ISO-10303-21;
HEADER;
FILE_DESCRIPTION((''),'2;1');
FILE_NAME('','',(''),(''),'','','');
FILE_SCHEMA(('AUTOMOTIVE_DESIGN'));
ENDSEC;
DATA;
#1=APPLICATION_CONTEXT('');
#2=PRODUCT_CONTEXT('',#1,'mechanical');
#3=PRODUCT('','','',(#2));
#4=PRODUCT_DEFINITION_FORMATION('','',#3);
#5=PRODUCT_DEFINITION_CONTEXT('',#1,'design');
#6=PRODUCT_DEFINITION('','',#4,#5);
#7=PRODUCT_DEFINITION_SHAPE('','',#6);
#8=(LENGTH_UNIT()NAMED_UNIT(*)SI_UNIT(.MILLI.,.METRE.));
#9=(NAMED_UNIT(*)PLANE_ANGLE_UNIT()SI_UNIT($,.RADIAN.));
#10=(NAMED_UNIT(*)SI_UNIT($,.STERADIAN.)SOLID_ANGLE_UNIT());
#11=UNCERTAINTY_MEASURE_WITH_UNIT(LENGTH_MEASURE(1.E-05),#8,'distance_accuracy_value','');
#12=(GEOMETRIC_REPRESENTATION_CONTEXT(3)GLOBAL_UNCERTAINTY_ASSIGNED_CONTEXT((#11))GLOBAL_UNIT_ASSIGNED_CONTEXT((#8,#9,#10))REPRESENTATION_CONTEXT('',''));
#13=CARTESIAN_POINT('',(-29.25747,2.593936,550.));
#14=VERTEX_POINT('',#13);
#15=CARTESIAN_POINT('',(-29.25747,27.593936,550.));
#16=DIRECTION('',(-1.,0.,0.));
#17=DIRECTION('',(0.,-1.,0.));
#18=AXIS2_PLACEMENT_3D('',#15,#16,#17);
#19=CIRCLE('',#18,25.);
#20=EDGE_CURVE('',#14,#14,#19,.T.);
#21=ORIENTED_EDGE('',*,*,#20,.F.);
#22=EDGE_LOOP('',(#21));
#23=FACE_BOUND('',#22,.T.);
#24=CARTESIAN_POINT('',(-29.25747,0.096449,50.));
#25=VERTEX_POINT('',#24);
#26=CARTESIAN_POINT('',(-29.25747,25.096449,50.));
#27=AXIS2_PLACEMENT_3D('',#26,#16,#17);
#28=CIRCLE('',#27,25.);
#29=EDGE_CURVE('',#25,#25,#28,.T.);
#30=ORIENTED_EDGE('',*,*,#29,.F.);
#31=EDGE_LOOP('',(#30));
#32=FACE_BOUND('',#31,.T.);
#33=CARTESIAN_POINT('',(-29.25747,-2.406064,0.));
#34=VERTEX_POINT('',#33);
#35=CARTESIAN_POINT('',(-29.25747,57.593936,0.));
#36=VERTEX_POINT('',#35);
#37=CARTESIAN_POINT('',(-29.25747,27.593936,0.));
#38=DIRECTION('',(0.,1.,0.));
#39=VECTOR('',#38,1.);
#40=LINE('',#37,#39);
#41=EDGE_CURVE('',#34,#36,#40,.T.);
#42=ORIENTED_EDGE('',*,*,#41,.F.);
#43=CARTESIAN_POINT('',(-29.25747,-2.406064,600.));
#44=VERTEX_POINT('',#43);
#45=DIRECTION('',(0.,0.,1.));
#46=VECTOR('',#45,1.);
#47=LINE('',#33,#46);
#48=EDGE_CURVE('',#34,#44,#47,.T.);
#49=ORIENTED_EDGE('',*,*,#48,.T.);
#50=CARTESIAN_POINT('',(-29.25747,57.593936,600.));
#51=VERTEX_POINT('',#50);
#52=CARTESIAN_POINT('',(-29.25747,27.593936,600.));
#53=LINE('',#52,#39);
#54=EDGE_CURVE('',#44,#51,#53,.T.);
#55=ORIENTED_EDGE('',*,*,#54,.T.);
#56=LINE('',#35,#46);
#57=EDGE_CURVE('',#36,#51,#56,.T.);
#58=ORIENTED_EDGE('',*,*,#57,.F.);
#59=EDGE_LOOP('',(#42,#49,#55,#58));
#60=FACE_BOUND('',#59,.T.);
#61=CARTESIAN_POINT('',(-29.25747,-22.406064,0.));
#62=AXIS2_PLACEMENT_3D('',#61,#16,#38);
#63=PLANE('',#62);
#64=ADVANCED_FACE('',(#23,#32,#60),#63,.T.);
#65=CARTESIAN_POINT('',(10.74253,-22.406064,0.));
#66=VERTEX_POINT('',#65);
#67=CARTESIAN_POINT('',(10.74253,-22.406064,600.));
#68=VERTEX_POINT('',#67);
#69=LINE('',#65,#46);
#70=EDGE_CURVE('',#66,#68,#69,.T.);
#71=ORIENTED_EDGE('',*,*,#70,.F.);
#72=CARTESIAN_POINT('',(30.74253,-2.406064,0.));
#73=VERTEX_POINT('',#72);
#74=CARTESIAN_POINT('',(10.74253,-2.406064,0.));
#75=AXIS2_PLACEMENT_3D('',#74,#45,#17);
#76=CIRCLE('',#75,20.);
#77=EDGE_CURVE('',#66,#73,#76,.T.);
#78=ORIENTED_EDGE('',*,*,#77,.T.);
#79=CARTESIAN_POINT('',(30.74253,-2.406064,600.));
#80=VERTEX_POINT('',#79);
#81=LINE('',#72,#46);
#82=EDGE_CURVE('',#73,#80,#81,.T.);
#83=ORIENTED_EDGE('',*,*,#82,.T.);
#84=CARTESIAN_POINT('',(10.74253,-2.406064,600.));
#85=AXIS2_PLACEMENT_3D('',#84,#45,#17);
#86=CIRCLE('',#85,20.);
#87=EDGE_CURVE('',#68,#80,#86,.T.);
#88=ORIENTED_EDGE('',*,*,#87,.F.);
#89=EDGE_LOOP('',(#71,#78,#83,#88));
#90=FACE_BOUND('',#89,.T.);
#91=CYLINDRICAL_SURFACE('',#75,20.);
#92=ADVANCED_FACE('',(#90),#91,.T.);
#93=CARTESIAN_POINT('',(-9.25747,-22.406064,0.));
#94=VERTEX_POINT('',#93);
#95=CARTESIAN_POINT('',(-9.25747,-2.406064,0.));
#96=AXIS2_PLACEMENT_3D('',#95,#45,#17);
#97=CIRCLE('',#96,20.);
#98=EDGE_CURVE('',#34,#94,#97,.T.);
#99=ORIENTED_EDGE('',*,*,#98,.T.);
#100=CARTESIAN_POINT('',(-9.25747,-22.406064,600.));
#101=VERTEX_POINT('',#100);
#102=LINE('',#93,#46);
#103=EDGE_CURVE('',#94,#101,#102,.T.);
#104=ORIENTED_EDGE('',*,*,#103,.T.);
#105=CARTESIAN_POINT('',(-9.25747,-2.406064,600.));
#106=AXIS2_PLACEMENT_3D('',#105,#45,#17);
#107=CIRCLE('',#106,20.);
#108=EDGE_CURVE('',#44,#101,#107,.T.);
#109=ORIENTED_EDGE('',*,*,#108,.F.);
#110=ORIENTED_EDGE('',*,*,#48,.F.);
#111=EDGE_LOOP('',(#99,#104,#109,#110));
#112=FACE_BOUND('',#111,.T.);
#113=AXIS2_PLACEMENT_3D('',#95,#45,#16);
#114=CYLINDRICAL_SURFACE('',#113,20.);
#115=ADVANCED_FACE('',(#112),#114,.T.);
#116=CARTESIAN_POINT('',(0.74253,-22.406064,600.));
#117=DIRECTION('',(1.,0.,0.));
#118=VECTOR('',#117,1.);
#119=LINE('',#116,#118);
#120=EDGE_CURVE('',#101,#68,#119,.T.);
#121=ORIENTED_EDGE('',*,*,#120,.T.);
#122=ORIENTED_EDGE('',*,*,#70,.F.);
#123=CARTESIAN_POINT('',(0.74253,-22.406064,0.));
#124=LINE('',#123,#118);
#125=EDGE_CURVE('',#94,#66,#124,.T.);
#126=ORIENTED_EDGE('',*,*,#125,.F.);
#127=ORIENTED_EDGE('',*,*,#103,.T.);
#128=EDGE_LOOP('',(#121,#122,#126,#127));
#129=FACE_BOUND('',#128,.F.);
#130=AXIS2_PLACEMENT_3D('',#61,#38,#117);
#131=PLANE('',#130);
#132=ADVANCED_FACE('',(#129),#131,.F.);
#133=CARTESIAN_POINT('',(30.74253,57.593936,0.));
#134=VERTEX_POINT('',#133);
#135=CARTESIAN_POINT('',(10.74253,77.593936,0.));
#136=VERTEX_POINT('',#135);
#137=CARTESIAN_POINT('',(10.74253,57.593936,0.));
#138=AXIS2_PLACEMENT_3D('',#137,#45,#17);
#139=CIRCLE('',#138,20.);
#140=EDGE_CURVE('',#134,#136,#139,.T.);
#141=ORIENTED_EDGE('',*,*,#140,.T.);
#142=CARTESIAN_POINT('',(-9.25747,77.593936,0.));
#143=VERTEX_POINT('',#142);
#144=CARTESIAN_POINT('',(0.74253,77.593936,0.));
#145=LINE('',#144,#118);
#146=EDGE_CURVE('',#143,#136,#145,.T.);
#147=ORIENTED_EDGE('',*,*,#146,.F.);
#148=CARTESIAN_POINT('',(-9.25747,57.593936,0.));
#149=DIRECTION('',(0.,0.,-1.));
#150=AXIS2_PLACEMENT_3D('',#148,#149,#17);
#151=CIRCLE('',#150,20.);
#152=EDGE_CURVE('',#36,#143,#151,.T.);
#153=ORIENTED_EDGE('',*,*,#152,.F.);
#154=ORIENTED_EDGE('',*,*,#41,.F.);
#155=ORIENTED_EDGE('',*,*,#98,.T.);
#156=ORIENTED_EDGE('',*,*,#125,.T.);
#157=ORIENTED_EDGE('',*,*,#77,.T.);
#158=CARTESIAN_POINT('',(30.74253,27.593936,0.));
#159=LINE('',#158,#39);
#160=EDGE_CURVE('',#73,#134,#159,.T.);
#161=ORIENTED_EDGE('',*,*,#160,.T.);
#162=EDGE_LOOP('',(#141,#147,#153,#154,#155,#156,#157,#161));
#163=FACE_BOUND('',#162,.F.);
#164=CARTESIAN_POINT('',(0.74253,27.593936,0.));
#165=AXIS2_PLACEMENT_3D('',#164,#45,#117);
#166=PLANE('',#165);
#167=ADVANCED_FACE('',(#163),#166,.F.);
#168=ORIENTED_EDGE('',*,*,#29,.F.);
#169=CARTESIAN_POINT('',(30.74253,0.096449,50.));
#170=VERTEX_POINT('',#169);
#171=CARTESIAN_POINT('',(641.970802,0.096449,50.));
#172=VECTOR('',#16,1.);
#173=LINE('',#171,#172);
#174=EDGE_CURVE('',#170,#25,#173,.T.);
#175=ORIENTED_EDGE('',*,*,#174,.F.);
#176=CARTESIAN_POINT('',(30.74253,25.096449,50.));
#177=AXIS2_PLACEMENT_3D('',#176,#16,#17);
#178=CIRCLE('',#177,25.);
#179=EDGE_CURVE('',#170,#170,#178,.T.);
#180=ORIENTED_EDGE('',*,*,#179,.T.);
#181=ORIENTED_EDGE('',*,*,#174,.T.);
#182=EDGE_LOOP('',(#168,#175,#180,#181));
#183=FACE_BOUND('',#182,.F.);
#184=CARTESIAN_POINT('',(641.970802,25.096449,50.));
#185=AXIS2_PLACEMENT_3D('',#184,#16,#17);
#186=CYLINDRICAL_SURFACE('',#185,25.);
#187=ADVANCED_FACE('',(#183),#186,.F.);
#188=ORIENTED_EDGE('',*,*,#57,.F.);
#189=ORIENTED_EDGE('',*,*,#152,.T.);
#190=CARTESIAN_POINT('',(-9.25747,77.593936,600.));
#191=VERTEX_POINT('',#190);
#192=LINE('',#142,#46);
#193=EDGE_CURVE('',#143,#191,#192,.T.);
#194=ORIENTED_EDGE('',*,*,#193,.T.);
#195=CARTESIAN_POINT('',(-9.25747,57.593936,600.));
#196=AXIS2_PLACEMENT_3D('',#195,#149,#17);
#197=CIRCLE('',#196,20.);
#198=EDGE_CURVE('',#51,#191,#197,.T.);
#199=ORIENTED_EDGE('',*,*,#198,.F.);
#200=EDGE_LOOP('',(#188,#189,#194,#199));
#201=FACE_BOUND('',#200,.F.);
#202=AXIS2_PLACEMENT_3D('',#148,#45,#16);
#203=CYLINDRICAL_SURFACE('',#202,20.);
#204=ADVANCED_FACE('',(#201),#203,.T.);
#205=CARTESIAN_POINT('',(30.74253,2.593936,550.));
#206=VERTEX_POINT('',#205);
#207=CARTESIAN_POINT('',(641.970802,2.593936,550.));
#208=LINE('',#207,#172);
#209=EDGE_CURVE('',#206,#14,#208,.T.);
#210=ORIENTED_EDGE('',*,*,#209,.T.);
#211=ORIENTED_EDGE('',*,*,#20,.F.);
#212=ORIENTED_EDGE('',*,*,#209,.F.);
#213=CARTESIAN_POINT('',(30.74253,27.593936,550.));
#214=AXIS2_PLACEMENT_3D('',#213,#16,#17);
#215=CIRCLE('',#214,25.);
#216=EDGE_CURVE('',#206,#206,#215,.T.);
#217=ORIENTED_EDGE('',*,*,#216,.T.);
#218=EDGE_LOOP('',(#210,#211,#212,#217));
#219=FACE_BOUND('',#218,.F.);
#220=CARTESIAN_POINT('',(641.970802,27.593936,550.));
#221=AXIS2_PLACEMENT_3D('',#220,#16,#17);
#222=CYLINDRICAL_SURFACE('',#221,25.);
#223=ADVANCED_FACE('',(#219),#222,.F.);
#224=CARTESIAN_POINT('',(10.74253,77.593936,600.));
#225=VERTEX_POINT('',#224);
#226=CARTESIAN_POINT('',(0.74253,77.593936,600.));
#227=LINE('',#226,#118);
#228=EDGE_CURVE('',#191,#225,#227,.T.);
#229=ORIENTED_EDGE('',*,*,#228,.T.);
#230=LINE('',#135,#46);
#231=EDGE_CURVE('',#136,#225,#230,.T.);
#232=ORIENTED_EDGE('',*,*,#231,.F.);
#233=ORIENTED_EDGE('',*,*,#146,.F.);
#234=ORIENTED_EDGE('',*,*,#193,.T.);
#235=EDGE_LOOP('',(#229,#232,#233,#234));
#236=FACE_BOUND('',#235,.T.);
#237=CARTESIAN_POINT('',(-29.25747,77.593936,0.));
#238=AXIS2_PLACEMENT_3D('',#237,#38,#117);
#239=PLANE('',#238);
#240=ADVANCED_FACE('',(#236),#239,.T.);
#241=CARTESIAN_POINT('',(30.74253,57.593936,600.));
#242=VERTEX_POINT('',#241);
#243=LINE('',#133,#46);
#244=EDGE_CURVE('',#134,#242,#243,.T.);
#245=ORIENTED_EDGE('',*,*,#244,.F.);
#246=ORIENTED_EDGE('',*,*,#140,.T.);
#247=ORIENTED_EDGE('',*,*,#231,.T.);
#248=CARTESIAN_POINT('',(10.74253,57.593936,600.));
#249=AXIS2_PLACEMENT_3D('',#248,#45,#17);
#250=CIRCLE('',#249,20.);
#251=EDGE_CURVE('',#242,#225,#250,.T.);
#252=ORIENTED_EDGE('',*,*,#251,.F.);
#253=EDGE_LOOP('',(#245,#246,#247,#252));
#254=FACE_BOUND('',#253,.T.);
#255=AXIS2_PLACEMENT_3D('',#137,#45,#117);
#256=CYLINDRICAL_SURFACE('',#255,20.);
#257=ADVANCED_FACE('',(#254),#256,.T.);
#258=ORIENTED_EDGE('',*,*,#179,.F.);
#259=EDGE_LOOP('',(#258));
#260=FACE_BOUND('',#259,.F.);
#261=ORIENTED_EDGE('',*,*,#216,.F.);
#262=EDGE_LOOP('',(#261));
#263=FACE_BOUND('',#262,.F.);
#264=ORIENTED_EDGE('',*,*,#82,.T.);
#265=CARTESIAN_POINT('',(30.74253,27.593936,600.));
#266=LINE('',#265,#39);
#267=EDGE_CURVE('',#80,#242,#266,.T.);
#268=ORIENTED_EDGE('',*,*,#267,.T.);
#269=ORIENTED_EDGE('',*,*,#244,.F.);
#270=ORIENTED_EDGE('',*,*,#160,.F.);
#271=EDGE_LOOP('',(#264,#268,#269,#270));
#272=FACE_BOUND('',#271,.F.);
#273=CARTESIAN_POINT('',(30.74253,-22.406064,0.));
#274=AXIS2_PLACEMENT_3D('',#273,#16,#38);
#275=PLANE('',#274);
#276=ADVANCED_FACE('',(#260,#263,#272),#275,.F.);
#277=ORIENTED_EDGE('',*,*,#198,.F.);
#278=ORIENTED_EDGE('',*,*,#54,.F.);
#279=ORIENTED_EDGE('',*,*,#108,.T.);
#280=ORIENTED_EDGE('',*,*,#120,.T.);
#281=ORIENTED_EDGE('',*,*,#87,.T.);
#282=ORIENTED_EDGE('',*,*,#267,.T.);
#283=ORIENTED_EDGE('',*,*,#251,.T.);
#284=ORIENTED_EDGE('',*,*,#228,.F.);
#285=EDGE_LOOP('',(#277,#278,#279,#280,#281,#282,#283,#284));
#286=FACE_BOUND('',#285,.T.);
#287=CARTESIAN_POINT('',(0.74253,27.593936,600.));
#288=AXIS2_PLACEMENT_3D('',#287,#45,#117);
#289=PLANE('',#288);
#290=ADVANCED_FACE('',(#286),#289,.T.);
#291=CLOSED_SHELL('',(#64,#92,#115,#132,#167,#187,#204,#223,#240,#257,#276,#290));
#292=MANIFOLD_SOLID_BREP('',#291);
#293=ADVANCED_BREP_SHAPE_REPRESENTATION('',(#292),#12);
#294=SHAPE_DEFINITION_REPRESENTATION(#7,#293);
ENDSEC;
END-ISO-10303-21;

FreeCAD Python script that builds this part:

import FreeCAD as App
import Part
import Sketcher
Q = App.Units.Quantity


def edges_at(feature, points):
    """Names of the edges that pass closest to the given points."""
    edges = feature.Shape.Edges
    near = lambda p: min(range(len(edges)), key=lambda i: edges[i].distToShape(Part.Vertex(*p))[0])
    return sorted({f"Edge{near(p) + 1}" for p in points})

doc = App.newDocument("Part")
body = doc.addObject("PartDesign::Body", "Body")

sketch1 = body.newObject("Sketcher::SketchObject", "Sketch")
sketch1.AttachmentSupport = (doc.getObject("XY_Plane"), [""])
sketch1.MapMode = "FlatFace"
sketch1.addGeometry(Part.LineSegment(App.Vector(-29, 78, 0), App.Vector(-29, -22, 0)), False)
sketch1.addGeometry(Part.LineSegment(App.Vector(-29, -22, 0), App.Vector(31, -22, 0)), False)
sketch1.addGeometry(Part.LineSegment(App.Vector(31, -22, 0), App.Vector(31, 78, 0)), False)
sketch1.addGeometry(Part.LineSegment(App.Vector(31, 78, 0), App.Vector(-29, 78, 0)), False)
sketch1.addConstraint(Sketcher.Constraint("Coincident", 0, 2, 1, 1))
sketch1.addConstraint(Sketcher.Constraint("Coincident", 1, 2, 2, 1))
sketch1.addConstraint(Sketcher.Constraint("Coincident", 2, 2, 3, 1))
sketch1.addConstraint(Sketcher.Constraint("Coincident", 3, 2, 0, 1))
sketch1.addConstraint(Sketcher.Constraint("Vertical", 0))
sketch1.addConstraint(Sketcher.Constraint("Horizontal", 1))
sketch1.addConstraint(Sketcher.Constraint("Vertical", 2))
sketch1.addConstraint(Sketcher.Constraint("Horizontal", 3))
sketch1.addConstraint(Sketcher.Constraint("DistanceX", 1, 1, 1, 2, Q("60 mm")))
sketch1.addConstraint(Sketcher.Constraint("DistanceY", 0, 2, 0, 1, Q("100 mm")))
sketch1.addConstraint(Sketcher.Constraint("DistanceX", 0, 2, -1, 1, Q("29.25747 mm")))
sketch1.addConstraint(Sketcher.Constraint("DistanceY", 0, 2, -1, 1, Q("22.406064 mm")))
pad1 = body.newObject("PartDesign::Pad", "Pad")
pad1.Profile = sketch1
pad1.Length = 600
doc.recompute()

fillet = body.newObject("PartDesign::Fillet", "Fillet")
fillet.Base = (pad1, edges_at(pad1, [
    (-29.257, -22.406, 300),
    (30.743, -22.406, 300),
    (30.743, 77.594, 300),
    (-29.257, 77.594, 300),
]))
fillet.Radius = 20

sketch2 = body.newObject("Sketcher::SketchObject", "Sketch001")
sketch2.AttachmentSupport = (doc.getObject("YZ_Plane"), [""])
sketch2.MapMode = "FlatFace"
sketch2.AttachmentOffset = App.Placement(App.Vector(0, 0, 30.74253), App.Rotation())
sketch2.addGeometry(Part.Circle(App.Vector(28, 550, 0), App.Vector(0, 0, 1), 25), False)
sketch2.addGeometry(Part.Circle(App.Vector(25, 50, 0), App.Vector(0, 0, 1), 25), False)
sketch2.addConstraint(Sketcher.Constraint("Equal", 0, 1))
sketch2.addConstraint(Sketcher.Constraint("Diameter", 0, Q("50 mm")))
sketch2.addConstraint(Sketcher.Constraint("DistanceY", -1, 1, 0, 3, Q("550 mm")))
sketch2.addConstraint(Sketcher.Constraint("DistanceY", -1, 1, 1, 3, Q("50 mm")))
sketch2.addConstraint(Sketcher.Constraint("DistanceX", -1, 1, 1, 3, Q("25.096449 mm")))
sketch2.addConstraint(Sketcher.Constraint("DistanceX", -1, 1, 0, 3, Q("27.593936 mm")))
doc.recompute()
hole = body.newObject("PartDesign::Hole", "Hole")
hole.Profile = sketch2
hole.ThreadType = "None"
hole.Diameter = 50
hole.DepthType = "ThroughAll"

doc.recompute()
